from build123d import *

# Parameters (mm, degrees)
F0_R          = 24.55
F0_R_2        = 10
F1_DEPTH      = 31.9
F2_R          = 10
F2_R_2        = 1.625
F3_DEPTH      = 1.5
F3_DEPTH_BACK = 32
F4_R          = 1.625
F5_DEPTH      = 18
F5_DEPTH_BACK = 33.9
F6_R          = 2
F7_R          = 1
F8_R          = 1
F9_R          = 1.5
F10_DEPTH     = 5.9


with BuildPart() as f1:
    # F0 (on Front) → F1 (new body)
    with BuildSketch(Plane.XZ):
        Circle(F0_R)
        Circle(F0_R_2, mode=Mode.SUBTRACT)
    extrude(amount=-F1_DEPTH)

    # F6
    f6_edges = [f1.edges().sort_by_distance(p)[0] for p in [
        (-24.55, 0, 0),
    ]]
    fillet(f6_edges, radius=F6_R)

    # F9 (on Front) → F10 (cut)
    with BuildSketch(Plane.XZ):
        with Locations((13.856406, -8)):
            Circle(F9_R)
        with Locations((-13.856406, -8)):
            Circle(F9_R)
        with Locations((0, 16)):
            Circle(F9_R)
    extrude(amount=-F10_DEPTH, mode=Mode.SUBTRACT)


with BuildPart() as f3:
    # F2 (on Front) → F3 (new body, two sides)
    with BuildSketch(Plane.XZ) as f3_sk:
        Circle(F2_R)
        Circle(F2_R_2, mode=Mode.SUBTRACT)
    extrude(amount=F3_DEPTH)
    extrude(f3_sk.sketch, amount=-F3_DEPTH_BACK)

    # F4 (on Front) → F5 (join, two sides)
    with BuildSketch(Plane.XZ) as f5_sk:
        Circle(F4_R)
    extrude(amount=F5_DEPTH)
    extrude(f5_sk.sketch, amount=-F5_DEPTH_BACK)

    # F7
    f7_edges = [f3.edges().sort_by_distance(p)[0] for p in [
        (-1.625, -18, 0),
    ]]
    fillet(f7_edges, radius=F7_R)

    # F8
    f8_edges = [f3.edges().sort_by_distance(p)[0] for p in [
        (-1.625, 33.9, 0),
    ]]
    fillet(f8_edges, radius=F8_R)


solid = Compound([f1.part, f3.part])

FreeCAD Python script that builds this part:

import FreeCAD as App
import Part
import Sketcher


def edges_at(feature, points):
    """Names of the edges that pass closest to the given points."""
    edges = feature.Shape.Edges
    near = lambda p: min(range(len(edges)), key=lambda i: edges[i].distToShape(Part.Vertex(*p))[0])
    return sorted({f"Edge{near(p) + 1}" for p in points})

doc = App.newDocument("Part")
body = doc.addObject("PartDesign::Body", "Body")

# Sketch on XZ plane
sketch1 = body.newObject("Sketcher::SketchObject", "Sketch")
sketch1.AttachmentSupport = (doc.getObject("XZ_Plane"), [""])
sketch1.MapMode = "FlatFace"
sketch1.addGeometry(Part.Circle(App.Vector(0, 0, 0), App.Vector(0, 0, 1), 25), False)
sketch1.addGeometry(Part.Circle(App.Vector(0, 0, 0), App.Vector(0, 0, 1), 10), False)
sketch1.addConstraint(Sketcher.Constraint("Coincident", 0, 3, -1, 1))
sketch1.addConstraint(Sketcher.Constraint("Coincident", 1, 3, -1, 1))
sketch1.addConstraint(Sketcher.Constraint("Diameter", 1, 20.0))
sketch1.addConstraint(Sketcher.Constraint("Diameter", 0, 49.1))
pad1 = body.newObject("PartDesign::Pad", "Pad")
pad1.Profile = sketch1
pad1.Length = 31.9
pad1.Reversed = True
doc.recompute()

fillet = body.newObject("PartDesign::Fillet", "Fillet")
fillet.Base = (pad1, edges_at(pad1, [(-24.55, 0, 0)]))
fillet.Radius = 2

# Sketch on XZ plane
sketch2 = body.newObject("Sketcher::SketchObject", "Sketch001")
sketch2.AttachmentSupport = (doc.getObject("XZ_Plane"), [""])
sketch2.MapMode = "FlatFace"
sketch2.addGeometry(Part.Circle(App.Vector(13.9, -8, 0), App.Vector(0, 0, 1), 1.5), False)
sketch2.addGeometry(Part.Circle(App.Vector(-13.9, -8, 0), App.Vector(0, 0, 1), 1.5), False)
sketch2.addGeometry(Part.Circle(App.Vector(0, 16, 0), App.Vector(0, 0, 1), 1.5), False)
sketch2.addConstraint(Sketcher.Constraint("Equal", 0, 1))
sketch2.addConstraint(Sketcher.Constraint("Equal", 1, 2))
sketch2.addConstraint(Sketcher.Constraint("Symmetric", 0, 3, 1, 3, -2))
sketch2.addConstraint(Sketcher.Constraint("PointOnObject", 2, 3, -2))
sketch2.addConstraint(Sketcher.Constraint("Diameter", 0, 3.0))
sketch2.addConstraint(Sketcher.Constraint("DistanceY", 0, 3, -1, 1, 8.0))
sketch2.addConstraint(Sketcher.Constraint("DistanceY", -1, 1, 2, 3, 16.0))
sketch2.addConstraint(Sketcher.Constraint("DistanceX", 1, 3, 0, 3, 27.712812))
pocket1 = body.newObject("PartDesign::Pocket", "Pocket")
pocket1.Profile = sketch2
pocket1.Length = 5.9
body2 = doc.addObject("PartDesign::Body", "Body001")

# Sketch on XZ plane
sketch3 = body2.newObject("Sketcher::SketchObject", "Sketch002")
sketch3.AttachmentSupport = (doc.getObject("XZ_Plane001"), [""])
sketch3.MapMode = "FlatFace"
sketch3.addGeometry(Part.Circle(App.Vector(0, 0, 0), App.Vector(0, 0, 1), 10), False)
sketch3.addGeometry(Part.Circle(App.Vector(0, 0, 0), App.Vector(0, 0, 1), 1.6), False)
sketch3.addConstraint(Sketcher.Constraint("Coincident", 0, 3, -1, 1))
sketch3.addConstraint(Sketcher.Constraint("Coincident", 1, 3, -1, 1))
sketch3.addConstraint(Sketcher.Constraint("Diameter", 0, 20.0))
sketch3.addConstraint(Sketcher.Constraint("Diameter", 1, 3.25))
pad2 = body2.newObject("PartDesign::Pad", "Pad001")
pad2.Profile = sketch3
pad2.Type = "TwoLengths"
pad2.Length = 1.5
pad2.Length2 = 32

# Sketch on XZ plane
sketch4 = body2.newObject("Sketcher::SketchObject", "Sketch003")
sketch4.AttachmentSupport = (doc.getObject("XZ_Plane001"), [""])
sketch4.MapMode = "FlatFace"
sketch4.addGeometry(Part.Circle(App.Vector(0, 0, 0), App.Vector(0, 0, 1), 1.6), False)
sketch4.addConstraint(Sketcher.Constraint("Coincident", 0, 3, -1, 1))
sketch4.addConstraint(Sketcher.Constraint("Diameter", 0, 3.25))
pad3 = body2.newObject("PartDesign::Pad", "Pad002")
pad3.Profile = sketch4
pad3.Type = "TwoLengths"
pad3.Length = 18
pad3.Length2 = 33.9
doc.recompute()

fillet2 = body2.newObject("PartDesign::Fillet", "Fillet001")
fillet2.Base = (pad3, edges_at(pad3, [(-1.625, -18, 0)]))
fillet2.Radius = 1
doc.recompute()

fillet3 = body2.newObject("PartDesign::Fillet", "Fillet002")
fillet3.Base = (fillet2, edges_at(fillet2, [(-1.625, 33.9, 0)]))
fillet3.Radius = 1

doc.recompute()
